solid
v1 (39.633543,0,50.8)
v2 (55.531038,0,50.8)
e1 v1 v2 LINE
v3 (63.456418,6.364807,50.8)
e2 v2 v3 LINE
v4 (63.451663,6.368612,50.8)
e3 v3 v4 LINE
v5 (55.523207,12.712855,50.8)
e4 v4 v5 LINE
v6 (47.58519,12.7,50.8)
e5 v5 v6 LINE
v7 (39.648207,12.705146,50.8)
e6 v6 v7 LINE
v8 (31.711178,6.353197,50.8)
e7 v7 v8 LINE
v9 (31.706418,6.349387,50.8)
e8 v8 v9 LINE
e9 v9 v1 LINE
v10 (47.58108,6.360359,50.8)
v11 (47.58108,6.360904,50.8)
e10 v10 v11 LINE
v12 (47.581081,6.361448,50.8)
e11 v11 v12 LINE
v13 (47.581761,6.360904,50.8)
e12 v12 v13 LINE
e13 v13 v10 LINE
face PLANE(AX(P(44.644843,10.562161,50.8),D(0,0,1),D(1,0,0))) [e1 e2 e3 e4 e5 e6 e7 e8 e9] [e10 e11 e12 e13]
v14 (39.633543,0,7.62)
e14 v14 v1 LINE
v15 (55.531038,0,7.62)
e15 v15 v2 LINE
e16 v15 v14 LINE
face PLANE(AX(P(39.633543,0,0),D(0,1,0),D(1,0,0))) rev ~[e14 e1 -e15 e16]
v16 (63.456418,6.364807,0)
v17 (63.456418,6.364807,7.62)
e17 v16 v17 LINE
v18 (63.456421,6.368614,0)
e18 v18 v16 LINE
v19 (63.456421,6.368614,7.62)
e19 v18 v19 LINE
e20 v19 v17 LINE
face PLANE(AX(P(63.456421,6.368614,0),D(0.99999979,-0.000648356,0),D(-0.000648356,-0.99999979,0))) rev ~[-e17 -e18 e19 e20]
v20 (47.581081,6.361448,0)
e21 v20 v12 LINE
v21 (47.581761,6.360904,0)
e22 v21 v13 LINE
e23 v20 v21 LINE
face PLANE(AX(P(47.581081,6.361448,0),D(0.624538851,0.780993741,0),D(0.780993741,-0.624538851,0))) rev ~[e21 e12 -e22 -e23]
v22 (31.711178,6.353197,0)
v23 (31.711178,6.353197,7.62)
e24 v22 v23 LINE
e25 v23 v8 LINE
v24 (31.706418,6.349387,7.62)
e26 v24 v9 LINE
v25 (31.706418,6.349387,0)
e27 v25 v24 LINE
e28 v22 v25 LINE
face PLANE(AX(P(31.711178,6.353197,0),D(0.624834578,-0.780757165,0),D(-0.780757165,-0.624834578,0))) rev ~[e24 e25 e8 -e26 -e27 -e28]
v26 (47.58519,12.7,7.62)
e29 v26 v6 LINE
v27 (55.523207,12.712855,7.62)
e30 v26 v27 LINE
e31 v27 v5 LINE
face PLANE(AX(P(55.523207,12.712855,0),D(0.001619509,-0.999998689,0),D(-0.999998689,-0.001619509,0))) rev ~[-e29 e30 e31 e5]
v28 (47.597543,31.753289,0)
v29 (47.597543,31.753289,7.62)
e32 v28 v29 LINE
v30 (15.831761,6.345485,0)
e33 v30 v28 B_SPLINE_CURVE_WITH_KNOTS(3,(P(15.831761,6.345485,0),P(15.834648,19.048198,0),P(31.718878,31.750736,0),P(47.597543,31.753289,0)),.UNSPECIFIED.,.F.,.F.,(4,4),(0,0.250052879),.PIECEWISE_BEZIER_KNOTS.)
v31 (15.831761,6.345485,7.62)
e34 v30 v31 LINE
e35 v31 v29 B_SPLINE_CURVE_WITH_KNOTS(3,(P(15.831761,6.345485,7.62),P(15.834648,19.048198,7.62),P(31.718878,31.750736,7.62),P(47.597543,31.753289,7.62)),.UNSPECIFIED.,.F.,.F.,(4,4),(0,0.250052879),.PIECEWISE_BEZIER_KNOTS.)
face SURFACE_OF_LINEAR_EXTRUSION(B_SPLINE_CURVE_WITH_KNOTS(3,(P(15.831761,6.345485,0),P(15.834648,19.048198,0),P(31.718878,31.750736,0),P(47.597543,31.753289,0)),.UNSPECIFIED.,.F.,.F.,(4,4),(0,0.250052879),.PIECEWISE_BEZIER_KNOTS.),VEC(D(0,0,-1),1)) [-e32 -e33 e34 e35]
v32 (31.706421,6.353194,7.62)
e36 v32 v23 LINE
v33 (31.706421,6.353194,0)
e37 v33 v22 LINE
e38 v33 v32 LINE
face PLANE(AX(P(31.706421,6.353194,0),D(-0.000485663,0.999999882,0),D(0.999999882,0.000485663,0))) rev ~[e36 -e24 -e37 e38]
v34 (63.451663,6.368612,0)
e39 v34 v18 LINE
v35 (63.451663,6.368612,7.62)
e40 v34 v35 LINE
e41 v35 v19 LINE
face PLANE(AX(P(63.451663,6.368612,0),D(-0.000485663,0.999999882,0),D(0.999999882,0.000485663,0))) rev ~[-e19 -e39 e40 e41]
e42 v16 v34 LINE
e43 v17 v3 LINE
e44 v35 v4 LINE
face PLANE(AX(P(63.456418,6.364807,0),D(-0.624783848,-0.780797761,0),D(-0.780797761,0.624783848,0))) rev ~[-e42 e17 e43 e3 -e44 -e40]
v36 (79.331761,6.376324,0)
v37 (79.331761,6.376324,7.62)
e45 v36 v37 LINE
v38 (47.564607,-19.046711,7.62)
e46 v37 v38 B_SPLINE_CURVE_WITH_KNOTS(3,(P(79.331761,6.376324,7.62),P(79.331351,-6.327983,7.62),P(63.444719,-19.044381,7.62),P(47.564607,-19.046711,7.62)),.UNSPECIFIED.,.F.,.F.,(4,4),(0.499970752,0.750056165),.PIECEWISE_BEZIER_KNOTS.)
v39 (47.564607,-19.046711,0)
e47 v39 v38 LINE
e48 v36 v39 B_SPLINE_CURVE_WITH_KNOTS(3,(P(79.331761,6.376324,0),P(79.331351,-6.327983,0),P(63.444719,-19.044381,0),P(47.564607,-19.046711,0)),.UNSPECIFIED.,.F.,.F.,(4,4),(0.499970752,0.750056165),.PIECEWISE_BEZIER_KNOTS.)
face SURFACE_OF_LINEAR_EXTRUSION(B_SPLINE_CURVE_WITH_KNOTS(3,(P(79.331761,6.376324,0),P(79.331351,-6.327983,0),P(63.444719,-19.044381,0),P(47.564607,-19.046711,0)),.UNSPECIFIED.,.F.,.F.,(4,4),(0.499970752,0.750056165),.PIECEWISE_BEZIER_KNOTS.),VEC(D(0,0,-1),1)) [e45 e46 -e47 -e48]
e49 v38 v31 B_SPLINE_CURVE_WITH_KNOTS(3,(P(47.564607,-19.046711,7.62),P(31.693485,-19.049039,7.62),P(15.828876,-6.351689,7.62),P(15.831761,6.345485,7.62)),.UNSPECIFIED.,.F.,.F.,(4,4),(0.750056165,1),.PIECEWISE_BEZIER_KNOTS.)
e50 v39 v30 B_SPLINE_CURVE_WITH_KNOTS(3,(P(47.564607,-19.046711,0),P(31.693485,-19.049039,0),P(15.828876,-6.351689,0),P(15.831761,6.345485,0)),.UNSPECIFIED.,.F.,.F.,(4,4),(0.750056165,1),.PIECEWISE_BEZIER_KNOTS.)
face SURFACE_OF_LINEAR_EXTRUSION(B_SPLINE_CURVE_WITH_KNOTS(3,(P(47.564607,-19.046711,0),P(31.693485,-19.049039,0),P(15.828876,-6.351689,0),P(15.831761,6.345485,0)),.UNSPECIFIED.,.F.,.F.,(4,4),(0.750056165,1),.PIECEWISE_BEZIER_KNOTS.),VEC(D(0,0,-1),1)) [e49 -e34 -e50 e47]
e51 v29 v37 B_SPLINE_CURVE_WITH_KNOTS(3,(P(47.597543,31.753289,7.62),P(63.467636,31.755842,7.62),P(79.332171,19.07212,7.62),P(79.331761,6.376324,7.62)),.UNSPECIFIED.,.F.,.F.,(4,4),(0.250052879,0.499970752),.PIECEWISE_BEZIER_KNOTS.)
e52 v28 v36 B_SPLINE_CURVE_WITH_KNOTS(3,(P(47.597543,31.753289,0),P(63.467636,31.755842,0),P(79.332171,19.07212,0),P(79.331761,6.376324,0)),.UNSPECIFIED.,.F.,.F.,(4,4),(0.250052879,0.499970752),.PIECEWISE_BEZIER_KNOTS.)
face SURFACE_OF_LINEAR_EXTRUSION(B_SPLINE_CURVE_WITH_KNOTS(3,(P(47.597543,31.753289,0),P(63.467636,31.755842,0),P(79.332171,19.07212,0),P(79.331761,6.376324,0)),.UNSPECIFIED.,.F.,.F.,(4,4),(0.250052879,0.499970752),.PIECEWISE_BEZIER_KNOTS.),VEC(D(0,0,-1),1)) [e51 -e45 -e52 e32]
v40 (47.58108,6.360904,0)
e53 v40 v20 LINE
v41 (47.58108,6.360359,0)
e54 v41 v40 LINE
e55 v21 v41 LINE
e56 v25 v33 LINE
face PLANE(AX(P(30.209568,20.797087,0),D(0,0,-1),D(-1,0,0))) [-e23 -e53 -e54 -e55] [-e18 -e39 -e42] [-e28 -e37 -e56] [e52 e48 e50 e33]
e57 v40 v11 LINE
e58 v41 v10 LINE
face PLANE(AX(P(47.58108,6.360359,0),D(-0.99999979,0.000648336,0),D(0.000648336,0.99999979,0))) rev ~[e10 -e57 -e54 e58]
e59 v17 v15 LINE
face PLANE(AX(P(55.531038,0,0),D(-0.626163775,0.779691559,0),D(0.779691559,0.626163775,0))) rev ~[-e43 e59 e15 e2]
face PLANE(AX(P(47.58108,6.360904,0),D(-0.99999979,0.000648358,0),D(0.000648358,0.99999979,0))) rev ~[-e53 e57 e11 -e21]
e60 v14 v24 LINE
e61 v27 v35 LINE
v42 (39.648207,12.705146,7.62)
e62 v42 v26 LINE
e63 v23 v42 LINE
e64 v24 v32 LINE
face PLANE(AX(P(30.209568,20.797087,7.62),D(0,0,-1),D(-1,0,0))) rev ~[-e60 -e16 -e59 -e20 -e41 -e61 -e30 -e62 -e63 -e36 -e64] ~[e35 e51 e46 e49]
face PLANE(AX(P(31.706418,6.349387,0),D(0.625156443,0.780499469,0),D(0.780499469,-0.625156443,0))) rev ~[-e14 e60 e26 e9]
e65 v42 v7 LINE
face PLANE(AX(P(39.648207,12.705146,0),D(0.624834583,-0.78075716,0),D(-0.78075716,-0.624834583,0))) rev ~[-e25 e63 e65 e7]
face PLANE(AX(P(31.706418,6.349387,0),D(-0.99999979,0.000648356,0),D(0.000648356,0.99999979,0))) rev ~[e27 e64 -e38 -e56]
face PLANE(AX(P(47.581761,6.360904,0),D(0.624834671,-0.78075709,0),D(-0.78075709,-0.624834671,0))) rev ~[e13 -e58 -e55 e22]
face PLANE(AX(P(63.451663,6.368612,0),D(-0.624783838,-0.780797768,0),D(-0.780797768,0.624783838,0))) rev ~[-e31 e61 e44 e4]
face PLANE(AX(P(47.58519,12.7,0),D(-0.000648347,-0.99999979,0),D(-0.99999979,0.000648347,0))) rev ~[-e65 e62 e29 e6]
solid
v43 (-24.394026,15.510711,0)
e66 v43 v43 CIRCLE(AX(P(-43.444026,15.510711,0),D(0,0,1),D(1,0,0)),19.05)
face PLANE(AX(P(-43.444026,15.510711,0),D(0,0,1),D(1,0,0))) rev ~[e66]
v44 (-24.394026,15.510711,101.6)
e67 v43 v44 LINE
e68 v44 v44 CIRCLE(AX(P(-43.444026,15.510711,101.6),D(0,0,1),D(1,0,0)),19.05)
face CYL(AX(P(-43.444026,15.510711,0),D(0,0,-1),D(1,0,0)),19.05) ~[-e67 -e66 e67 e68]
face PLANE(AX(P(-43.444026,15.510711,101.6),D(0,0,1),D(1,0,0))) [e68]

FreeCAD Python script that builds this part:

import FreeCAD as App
import Part
import Sketcher

V = App.Vector
Q = App.Units.Quantity

doc = App.newDocument("Part")
body = doc.addObject("PartDesign::Body", "Body")

sketch1 = body.newObject("Sketcher::SketchObject", "Sketch")
sketch1.AttachmentSupport = (doc.getObject("XY_Plane"), [""])
sketch1.MapMode = "FlatFace"
sketch1.addGeometry(Part.Circle(V(-43, 16, 0), V(0, 0, 1), 19), False)
sketch1.addConstraint([
    Sketcher.Constraint("Diameter", 0, Q("1.5 in")),
    Sketcher.Constraint("DistanceY", -1, 1, 0, 3, 15.510711),
    Sketcher.Constraint("DistanceX", 0, 3, -1, 1, 43.444026),
])
pad1 = body.newObject("PartDesign::Pad", "Pad")
pad1.Profile = sketch1
pad1.Length = Q("4 in")
body2 = doc.addObject("PartDesign::Body", "Body001")

sketch2 = body2.newObject("Sketcher::SketchObject", "Sketch001")
sketch2.AttachmentSupport = (doc.getObject("XY_Plane001"), [""])
sketch2.MapMode = "FlatFace"
sketch2.addGeometry([
    Part.BSplineCurve([V(79.331761, 6.376324, 0), V(79.331351, -6.327983, 0), V(63.444719, -19.044381, 0), V(47.564607, -19.046711, 0)], [4, 4], [0.499970752, 0.750056165], False, 3, [1, 1, 1, 1], False),
    Part.BSplineCurve([V(47.597543, 31.753289, 0), V(63.467636, 31.755842, 0), V(79.332171, 19.07212, 0), V(79.331761, 6.376324, 0)], [4, 4], [0.250052879, 0.499970752], False, 3, [1, 1, 1, 1], False),
    Part.BSplineCurve([V(15.831761, 6.345485, 0), V(15.834648, 19.048198, 0), V(31.718878, 31.750736, 0), V(47.597543, 31.753289, 0)], [4, 4], [0, 0.250052879], False, 3, [1, 1, 1, 1], False),
    Part.BSplineCurve([V(47.564607, -19.046711, 0), V(31.693485, -19.049039, 0), V(15.828876, -6.351689, 0), V(15.831761, 6.345485, 0)], [4, 4], [0.750056165, 1], False, 3, [1, 1, 1, 1], False),
    Part.LineSegment(V(55.531038, 0, 0), V(39.633543, 0, 0)),
    Part.LineSegment(V(39.633543, 0, 0), V(31.706418, 6.349387, 0)),
    Part.LineSegment(V(31.706418, 6.349387, 0), V(31.706421, 6.353194, 0)),
    Part.LineSegment(V(31.706421, 6.353194, 0), V(31.711178, 6.353197, 0)),
    Part.LineSegment(V(31.711178, 6.353197, 0), V(39.648207, 12.705146, 0)),
    Part.LineSegment(V(39.648207, 12.705146, 0), V(47.58519, 12.7, 0)),
    Part.LineSegment(V(47.58519, 12.7, 0), V(55.523207, 12.712855, 0)),
    Part.LineSegment(V(55.523207, 12.712855, 0), V(63.451663, 6.368612, 0)),
    Part.LineSegment(V(63.451663, 6.368612, 0), V(63.456421, 6.368614, 0)),
    Part.LineSegment(V(63.456421, 6.368614, 0), V(63.456418, 6.364807, 0)),
    Part.LineSegment(V(63.456418, 6.364807, 0), V(55.531038, 0, 0)),
], False)
sketch2.addConstraint([
    Sketcher.Constraint("Block", 0),
    Sketcher.Constraint("Block", 1),
    Sketcher.Constraint("Block", 2),
    Sketcher.Constraint("Block", 3),
    Sketcher.Constraint("Coincident", 4, 2, 5, 1),
    Sketcher.Constraint("Coincident", 5, 2, 6, 1),
    Sketcher.Constraint("Coincident", 6, 2, 7, 1),
    Sketcher.Constraint("Coincident", 7, 2, 8, 1),
    Sketcher.Constraint("Coincident", 8, 2, 9, 1),
    Sketcher.Constraint("Coincident", 9, 2, 10, 1),
    Sketcher.Constraint("Coincident", 10, 2, 11, 1),
    Sketcher.Constraint("Coincident", 11, 2, 12, 1),
    Sketcher.Constraint("Coincident", 12, 2, 13, 1),
    Sketcher.Constraint("Coincident", 13, 2, 14, 1),
    Sketcher.Constraint("Coincident", 14, 2, 4, 1),
    Sketcher.Constraint("Horizontal", 4),
    Sketcher.Constraint("PointOnObject", 4, 2, -1),
    Sketcher.Constraint("Perpendicular", 6, 9),
    Sketcher.Constraint("Parallel", 7, 12),
    Sketcher.Constraint("Perpendicular", 9, 13),
    Sketcher.Constraint("Equal", 7, 12),
    Sketcher.Constraint("Equal", 6, 13),
    Sketcher.Constraint("DistanceY", -1, 1, 9, 2, Q("0.5 in")),
    Sketcher.Constraint("DistanceX", 8, 2, 10, 2, Q("0.625 in")),
    Sketcher.Constraint("Distance", 8, 10.165809),
    Sketcher.Constraint("DistanceX", 4, 2, 4, 1, 15.897495),
    Sketcher.Constraint("DistanceX", -1, 1, 5, 2, 31.706418),
    Sketcher.Constraint("DistanceX", -1, 1, 7, 2, 31.711178),
    Sketcher.Constraint("DistanceX", -1, 1, 9, 2, 47.58519),
    Sketcher.Constraint("DistanceY", -1, 1, 11, 2, 6.368612),
    Sketcher.Constraint("DistanceX", -1, 1, 12, 2, 63.456421),
    Sketcher.Constraint("DistanceX", -1, 1, 14, 2, 55.531038),
    Sketcher.Constraint("DistanceY", 5, 2, 7, 2, 0.00381),
    Sketcher.Constraint("DistanceX", 7, 2, 8, 2, 7.937028),
    Sketcher.Constraint("DistanceY", 6, 2, 8, 2, 6.351951),
    Sketcher.Constraint("DistanceY", 8, 2, 10, 2, 0.00771),
    Sketcher.Constraint("DistanceY", 12, 2, 10, 2, 6.344242),
])
pad2 = body2.newObject("PartDesign::Pad", "Pad001")
pad2.Profile = sketch2
pad2.Length = Q("0.3 in")

sketch3 = body2.newObject("Sketcher::SketchObject", "Sketch002")
sketch3.AttachmentSupport = (doc.getObject("XY_Plane001"), [""])
sketch3.MapMode = "FlatFace"
sketch3.addGeometry([
    Part.LineSegment(V(47.5852, 12.7, 0), V(39.6482, 12.7051, 0)),
    Part.LineSegment(V(39.6482, 12.7051, 0), V(31.7112, 6.3532, 0)),
    Part.LineSegment(V(31.7112, 6.3532, 0), V(31.7064, 6.3494, 0)),
    Part.LineSegment(V(31.7064, 6.3494, 0), V(39.6335, 0, 0)),
    Part.LineSegment(V(39.6335, 0, 0), V(55.531, 0, 0)),
    Part.LineSegment(V(55.531, 0, 0), V(63.4564, 6.3648, 0)),
    Part.LineSegment(V(63.4564, 6.3648, 0), V(63.4517, 6.3686, 0)),
    Part.LineSegment(V(63.4517, 6.3686, 0), V(55.5232, 12.7129, 0)),
    Part.LineSegment(V(55.5232, 12.7129, 0), V(47.5852, 12.7, 0)),
    Part.LineSegment(V(47.5811, 6.3614, 0), V(47.5818, 6.3609, 0)),
    Part.LineSegment(V(47.5818, 6.3609, 0), V(47.5811, 6.3604, 0)),
    Part.LineSegment(V(47.5811, 6.3604, 0), V(47.5811, 6.3609, 0)),
    Part.LineSegment(V(47.5811, 6.3609, 0), V(47.5811, 6.3614, 0)),
], False)
sketch3.addConstraint([
    Sketcher.Constraint("Coincident", 0, 2, 1, 1),
    Sketcher.Constraint("Coincident", 1, 2, 2, 1),
    Sketcher.Constraint("Coincident", 2, 2, 3, 1),
    Sketcher.Constraint("Coincident", 3, 2, 4, 1),
    Sketcher.Constraint("Coincident", 4, 2, 5, 1),
    Sketcher.Constraint("Coincident", 5, 2, 6, 1),
    Sketcher.Constraint("Coincident", 6, 2, 7, 1),
    Sketcher.Constraint("Coincident", 7, 2, 8, 1),
    Sketcher.Constraint("Coincident", 8, 2, 0, 1),
    Sketcher.Constraint("Coincident", 9, 2, 10, 1),
    Sketcher.Constraint("Coincident", 10, 2, 11, 1),
    Sketcher.Constraint("Coincident", 11, 2, 12, 1),
    Sketcher.Constraint("Coincident", 12, 2, 9, 1),
    Sketcher.Constraint("Horizontal", 4),
    Sketcher.Constraint("Vertical", 11),
    Sketcher.Constraint("Vertical", 12),
    Sketcher.Constraint("PointOnObject", 3, 2, -1),
    Sketcher.Constraint("Parallel", 1, 2),
    Sketcher.Constraint("Parallel", 6, 7),
    Sketcher.Constraint("Parallel", 2, 10),
    Sketcher.Constraint("Horizontal", 9, 2, 11, 2),
    Sketcher.Constraint("Equal", 11, 12),
    Sketcher.Constraint("DistanceY", -1, 1, 8, 2, Q("0.5 in")),
    Sketcher.Constraint("DistanceX", 2, 2, 5, 2, Q("1.25 in")),
    Sketcher.Constraint("DistanceX", 0, 2, 7, 2, Q("0.625 in")),
    Sketcher.Constraint("Distance", 1, 10.165809),
    Sketcher.Constraint("Distance", 6, 0.00609),
    Sketcher.Constraint("Distance", 9, 0.000871),
    Sketcher.Constraint("DistanceX", 4, 1, 4, 2, 15.897495),
    Sketcher.Constraint("DistanceX", -1, 1, 1, 2, 31.711178),
    Sketcher.Constraint("DistanceX", -1, 1, 2, 2, 31.706418),
    Sketcher.Constraint("DistanceX", -1, 1, 4, 2, 55.531038),
    Sketcher.Constraint("DistanceY", -1, 1, 6, 2, 6.368612),
    Sketcher.Constraint("DistanceX", -1, 1, 8, 2, 47.58519),
    Sketcher.Constraint("DistanceX", -1, 1, 9, 2, 47.581761),
    Sketcher.Constraint("DistanceY", -1, 1, 10, 2, 6.360359),
    Sketcher.Constraint("DistanceX", 1, 2, 0, 2, 7.937028),
    Sketcher.Constraint("DistanceY", 5, 2, 0, 2, 6.340339),
    Sketcher.Constraint("DistanceY", 5, 2, 7, 2, 6.348049),
])
pad3 = body2.newObject("PartDesign::Pad", "Pad002")
pad3.Profile = sketch3
pad3.Length = Q("2 in")

doc.recompute()
